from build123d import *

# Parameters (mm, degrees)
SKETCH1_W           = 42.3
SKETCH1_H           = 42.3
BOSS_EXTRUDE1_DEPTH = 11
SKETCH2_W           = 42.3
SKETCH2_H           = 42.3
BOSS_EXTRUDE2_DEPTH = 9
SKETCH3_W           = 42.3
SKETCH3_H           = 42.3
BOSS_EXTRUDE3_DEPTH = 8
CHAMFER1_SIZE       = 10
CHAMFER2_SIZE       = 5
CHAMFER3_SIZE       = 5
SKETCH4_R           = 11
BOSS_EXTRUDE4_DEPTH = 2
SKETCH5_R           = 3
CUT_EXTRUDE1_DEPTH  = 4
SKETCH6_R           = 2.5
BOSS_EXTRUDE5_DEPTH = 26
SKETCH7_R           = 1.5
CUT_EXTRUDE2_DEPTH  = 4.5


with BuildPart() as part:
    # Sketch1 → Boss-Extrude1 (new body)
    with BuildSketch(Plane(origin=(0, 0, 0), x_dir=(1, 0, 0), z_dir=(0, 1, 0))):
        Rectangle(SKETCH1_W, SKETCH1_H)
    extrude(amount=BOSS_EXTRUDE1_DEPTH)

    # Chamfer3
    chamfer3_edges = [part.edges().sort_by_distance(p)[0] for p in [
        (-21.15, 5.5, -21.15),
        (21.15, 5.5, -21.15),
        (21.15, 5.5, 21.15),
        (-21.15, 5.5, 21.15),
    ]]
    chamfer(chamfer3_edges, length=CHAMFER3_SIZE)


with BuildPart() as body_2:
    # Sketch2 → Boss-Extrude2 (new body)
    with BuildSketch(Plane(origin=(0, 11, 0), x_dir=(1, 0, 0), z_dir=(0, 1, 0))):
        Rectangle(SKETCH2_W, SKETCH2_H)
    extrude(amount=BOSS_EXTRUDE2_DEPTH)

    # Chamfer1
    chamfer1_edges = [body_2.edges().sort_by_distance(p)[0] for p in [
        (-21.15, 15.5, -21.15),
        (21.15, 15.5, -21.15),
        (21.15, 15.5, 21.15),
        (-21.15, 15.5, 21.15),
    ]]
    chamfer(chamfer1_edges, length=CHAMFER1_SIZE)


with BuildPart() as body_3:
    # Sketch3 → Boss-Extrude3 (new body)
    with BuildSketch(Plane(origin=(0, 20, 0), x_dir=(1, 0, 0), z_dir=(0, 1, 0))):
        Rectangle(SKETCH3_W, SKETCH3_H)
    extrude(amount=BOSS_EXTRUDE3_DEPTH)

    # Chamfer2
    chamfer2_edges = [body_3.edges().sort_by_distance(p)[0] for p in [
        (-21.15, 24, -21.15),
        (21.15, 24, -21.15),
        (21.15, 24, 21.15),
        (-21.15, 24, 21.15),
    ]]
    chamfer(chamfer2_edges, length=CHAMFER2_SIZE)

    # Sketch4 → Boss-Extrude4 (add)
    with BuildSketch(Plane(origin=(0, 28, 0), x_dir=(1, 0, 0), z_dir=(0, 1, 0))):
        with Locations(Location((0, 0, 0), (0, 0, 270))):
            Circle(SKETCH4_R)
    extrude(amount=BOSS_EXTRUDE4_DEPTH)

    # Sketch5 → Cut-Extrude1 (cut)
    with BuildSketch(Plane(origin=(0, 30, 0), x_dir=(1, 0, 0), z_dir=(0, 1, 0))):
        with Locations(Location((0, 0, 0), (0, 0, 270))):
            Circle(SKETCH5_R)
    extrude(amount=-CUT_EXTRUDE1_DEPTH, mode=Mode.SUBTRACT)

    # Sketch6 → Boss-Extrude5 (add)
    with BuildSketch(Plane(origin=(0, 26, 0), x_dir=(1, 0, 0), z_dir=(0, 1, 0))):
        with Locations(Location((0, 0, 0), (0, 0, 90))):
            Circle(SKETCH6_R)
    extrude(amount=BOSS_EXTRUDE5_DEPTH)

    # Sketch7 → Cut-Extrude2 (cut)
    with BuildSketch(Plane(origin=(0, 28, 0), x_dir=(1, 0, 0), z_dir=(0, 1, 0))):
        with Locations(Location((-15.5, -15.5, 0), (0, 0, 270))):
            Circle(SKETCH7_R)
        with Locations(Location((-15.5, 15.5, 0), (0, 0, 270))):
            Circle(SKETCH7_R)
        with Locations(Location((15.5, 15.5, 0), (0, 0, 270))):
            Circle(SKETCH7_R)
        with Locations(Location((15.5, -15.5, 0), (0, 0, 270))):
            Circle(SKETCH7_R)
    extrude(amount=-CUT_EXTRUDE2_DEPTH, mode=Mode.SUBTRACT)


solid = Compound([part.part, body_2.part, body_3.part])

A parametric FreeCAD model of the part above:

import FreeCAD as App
import Part
import Sketcher

V = App.Vector


def edges_at(feature, points):
    """Names of the edges that pass closest to the given points."""
    edges = feature.Shape.Edges
    near = lambda p: min(range(len(edges)), key=lambda i: edges[i].distToShape(Part.Vertex(*p))[0])
    return sorted({f"Edge{near(p) + 1}" for p in points})

doc = App.newDocument("Part")
body = doc.addObject("PartDesign::Body", "Body")

sketch1 = body.newObject("Sketcher::SketchObject", "Sketch")
sketch1.AttachmentSupport = (doc.getObject("XZ_Plane"), [""])
sketch1.MapMode = "FlatFace"
sketch1.addGeometry([
    Part.LineSegment(V(-21, -21, 0), V(-21, 21, 0)),
    Part.LineSegment(V(-21, 21, 0), V(21, 21, 0)),
    Part.LineSegment(V(21, 21, 0), V(21, -21, 0)),
    Part.LineSegment(V(21, -21, 0), V(-21, -21, 0)),
], False)
sketch1.addConstraint([
    Sketcher.Constraint("Coincident", 0, 2, 1, 1),
    Sketcher.Constraint("Coincident", 1, 2, 2, 1),
    Sketcher.Constraint("Coincident", 2, 2, 3, 1),
    Sketcher.Constraint("Coincident", 3, 2, 0, 1),
    Sketcher.Constraint("Vertical", 0),
    Sketcher.Constraint("Horizontal", 1),
    Sketcher.Constraint("Vertical", 2),
    Sketcher.Constraint("Horizontal", 3),
    Sketcher.Constraint("Symmetric", 0, 2, 2, 2, -1, 1),
    Sketcher.Constraint("Equal", 3, 0),
    Sketcher.Constraint("DistanceX", 1, 1, 1, 2, 42.3),
])
pad1 = body.newObject("PartDesign::Pad", "Pad")
pad1.Profile = sketch1
pad1.Length = 11
pad1.Reversed = True
doc.recompute()

chamfer = body.newObject("PartDesign::Chamfer", "Chamfer")
chamfer.Base = (pad1, edges_at(pad1, [
    (-21.15, 5.5, -21.15),
    (21.15, 5.5, -21.15),
    (21.15, 5.5, 21.15),
    (-21.15, 5.5, 21.15),
]))
chamfer.Size = 5
body2 = doc.addObject("PartDesign::Body", "Body001")

sketch2 = body2.newObject("Sketcher::SketchObject", "Sketch001")
sketch2.AttachmentSupport = (doc.getObject("XZ_Plane001"), [""])
sketch2.MapMode = "FlatFace"
sketch2.AttachmentOffset = App.Placement(V(0, 0, -11), App.Rotation())
sketch2.addGeometry([
    Part.LineSegment(V(-21, -21, 0), V(-21, 21, 0)),
    Part.LineSegment(V(-21, 21, 0), V(21, 21, 0)),
    Part.LineSegment(V(21, 21, 0), V(21, -21, 0)),
    Part.LineSegment(V(21, -21, 0), V(-21, -21, 0)),
], False)
sketch2.addConstraint([
    Sketcher.Constraint("Coincident", 0, 2, 1, 1),
    Sketcher.Constraint("Coincident", 1, 2, 2, 1),
    Sketcher.Constraint("Coincident", 2, 2, 3, 1),
    Sketcher.Constraint("Coincident", 3, 2, 0, 1),
    Sketcher.Constraint("Vertical", 0),
    Sketcher.Constraint("Horizontal", 1),
    Sketcher.Constraint("Vertical", 2),
    Sketcher.Constraint("Horizontal", 3),
    Sketcher.Constraint("Symmetric", 0, 2, 2, 2, -1, 1),
    Sketcher.Constraint("Equal", 3, 0),
    Sketcher.Constraint("DistanceX", 1, 1, 1, 2, 42.3),
])
pad2 = body2.newObject("PartDesign::Pad", "Pad001")
pad2.Profile = sketch2
pad2.Length = 9
pad2.Reversed = True
doc.recompute()

chamfer2 = body2.newObject("PartDesign::Chamfer", "Chamfer001")
chamfer2.Base = (pad2, edges_at(pad2, [
    (-21.15, 15.5, -21.15),
    (21.15, 15.5, -21.15),
    (21.15, 15.5, 21.15),
    (-21.15, 15.5, 21.15),
]))
chamfer2.Size = 10
body3 = doc.addObject("PartDesign::Body", "Body002")

sketch3 = body3.newObject("Sketcher::SketchObject", "Sketch002")
sketch3.AttachmentSupport = (doc.getObject("XZ_Plane002"), [""])
sketch3.MapMode = "FlatFace"
sketch3.AttachmentOffset = App.Placement(V(0, 0, -20), App.Rotation())
sketch3.addGeometry([
    Part.LineSegment(V(-21, -21, 0), V(-21, 21, 0)),
    Part.LineSegment(V(-21, 21, 0), V(21, 21, 0)),
    Part.LineSegment(V(21, 21, 0), V(21, -21, 0)),
    Part.LineSegment(V(21, -21, 0), V(-21, -21, 0)),
], False)
sketch3.addConstraint([
    Sketcher.Constraint("Coincident", 0, 2, 1, 1),
    Sketcher.Constraint("Coincident", 1, 2, 2, 1),
    Sketcher.Constraint("Coincident", 2, 2, 3, 1),
    Sketcher.Constraint("Coincident", 3, 2, 0, 1),
    Sketcher.Constraint("Vertical", 0),
    Sketcher.Constraint("Horizontal", 1),
    Sketcher.Constraint("Vertical", 2),
    Sketcher.Constraint("Horizontal", 3),
    Sketcher.Constraint("Symmetric", 0, 2, 2, 2, -1, 1),
    Sketcher.Constraint("Equal", 3, 0),
    Sketcher.Constraint("DistanceX", 1, 1, 1, 2, 42.3),
])
pad3 = body3.newObject("PartDesign::Pad", "Pad002")
pad3.Profile = sketch3
pad3.Length = 8
pad3.Reversed = True
doc.recompute()

chamfer3 = body3.newObject("PartDesign::Chamfer", "Chamfer002")
chamfer3.Base = (pad3, edges_at(pad3, [
    (-21.15, 24, -21.15),
    (21.15, 24, -21.15),
    (21.15, 24, 21.15),
    (-21.15, 24, 21.15),
]))
chamfer3.Size = 5

sketch4 = body3.newObject("Sketcher::SketchObject", "Sketch003")
sketch4.AttachmentSupport = (doc.getObject("XZ_Plane002"), [""])
sketch4.MapMode = "FlatFace"
sketch4.AttachmentOffset = App.Placement(V(0, 0, -28), App.Rotation())
sketch4.addGeometry(Part.Circle(V(0, 0, 0), V(0, 0, 1), 11), False)
sketch4.addConstraint([
    Sketcher.Constraint("Coincident", 0, 3, -1, 1),
    Sketcher.Constraint("Diameter", 0, 22.0),
])
pad4 = body3.newObject("PartDesign::Pad", "Pad003")
pad4.Profile = sketch4
pad4.Length = 2
pad4.Reversed = True

sketch5 = body3.newObject("Sketcher::SketchObject", "Sketch004")
sketch5.AttachmentSupport = (doc.getObject("XZ_Plane002"), [""])
sketch5.MapMode = "FlatFace"
sketch5.AttachmentOffset = App.Placement(V(0, 0, -30), App.Rotation())
sketch5.addGeometry(Part.Circle(V(0, 0, 0), V(0, 0, 1), 3), False)
sketch5.addConstraint([
    Sketcher.Constraint("Coincident", 0, 3, -1, 1),
    Sketcher.Constraint("Diameter", 0, 6.0),
])
pocket1 = body3.newObject("PartDesign::Pocket", "Pocket")
pocket1.Profile = sketch5
pocket1.Length = 4
pocket1.Reversed = True

sketch6 = body3.newObject("Sketcher::SketchObject", "Sketch005")
sketch6.AttachmentSupport = (doc.getObject("XZ_Plane002"), [""])
sketch6.MapMode = "FlatFace"
sketch6.AttachmentOffset = App.Placement(V(0, 0, -26), App.Rotation())
sketch6.addGeometry(Part.Circle(V(0, 0, 0), V(0, 0, 1), 2.5), False)
sketch6.addConstraint([
    Sketcher.Constraint("Coincident", 0, 3, -1, 1),
    Sketcher.Constraint("Diameter", 0, 5.0),
])
pad5 = body3.newObject("PartDesign::Pad", "Pad004")
pad5.Profile = sketch6
pad5.Length = 26
pad5.Reversed = True

sketch7 = body3.newObject("Sketcher::SketchObject", "Sketch006")
sketch7.AttachmentSupport = (doc.getObject("XZ_Plane002"), [""])
sketch7.MapMode = "FlatFace"
sketch7.AttachmentOffset = App.Placement(V(0, 0, -28), App.Rotation())
sketch7.addGeometry([
    Part.Circle(V(-15.5, 15.5, 0), V(0, 0, 1), 1.5),
    Part.Circle(V(-15.5, -15.5, 0), V(0, 0, 1), 1.5),
    Part.Circle(V(15.5, -15.5, 0), V(0, 0, 1), 1.5),
    Part.Circle(V(15.5, 15.5, 0), V(0, 0, 1), 1.5),
], False)
sketch7.addConstraint([
    Sketcher.Constraint("Equal", 0, 1),
    Sketcher.Constraint("Equal", 1, 2),
    Sketcher.Constraint("Equal", 2, 3),
    Sketcher.Constraint("Symmetric", 0, 3, 2, 3, -1, 1),
    Sketcher.Constraint("Symmetric", 1, 3, 3, 3, -1, 1),
    Sketcher.Constraint("Symmetric", 1, 3, 2, 3, -2),
    Sketcher.Constraint("Diameter", 0, 3.0),
    Sketcher.Constraint("DistanceY", 1, 3, 0, 3, 31.0),
    Sketcher.Constraint("DistanceX", 1, 3, 2, 3, 31.0),
])
pocket2 = body3.newObject("PartDesign::Pocket", "Pocket001")
pocket2.Profile = sketch7
pocket2.Length = 4.5
pocket2.Reversed = True

doc.recompute()
